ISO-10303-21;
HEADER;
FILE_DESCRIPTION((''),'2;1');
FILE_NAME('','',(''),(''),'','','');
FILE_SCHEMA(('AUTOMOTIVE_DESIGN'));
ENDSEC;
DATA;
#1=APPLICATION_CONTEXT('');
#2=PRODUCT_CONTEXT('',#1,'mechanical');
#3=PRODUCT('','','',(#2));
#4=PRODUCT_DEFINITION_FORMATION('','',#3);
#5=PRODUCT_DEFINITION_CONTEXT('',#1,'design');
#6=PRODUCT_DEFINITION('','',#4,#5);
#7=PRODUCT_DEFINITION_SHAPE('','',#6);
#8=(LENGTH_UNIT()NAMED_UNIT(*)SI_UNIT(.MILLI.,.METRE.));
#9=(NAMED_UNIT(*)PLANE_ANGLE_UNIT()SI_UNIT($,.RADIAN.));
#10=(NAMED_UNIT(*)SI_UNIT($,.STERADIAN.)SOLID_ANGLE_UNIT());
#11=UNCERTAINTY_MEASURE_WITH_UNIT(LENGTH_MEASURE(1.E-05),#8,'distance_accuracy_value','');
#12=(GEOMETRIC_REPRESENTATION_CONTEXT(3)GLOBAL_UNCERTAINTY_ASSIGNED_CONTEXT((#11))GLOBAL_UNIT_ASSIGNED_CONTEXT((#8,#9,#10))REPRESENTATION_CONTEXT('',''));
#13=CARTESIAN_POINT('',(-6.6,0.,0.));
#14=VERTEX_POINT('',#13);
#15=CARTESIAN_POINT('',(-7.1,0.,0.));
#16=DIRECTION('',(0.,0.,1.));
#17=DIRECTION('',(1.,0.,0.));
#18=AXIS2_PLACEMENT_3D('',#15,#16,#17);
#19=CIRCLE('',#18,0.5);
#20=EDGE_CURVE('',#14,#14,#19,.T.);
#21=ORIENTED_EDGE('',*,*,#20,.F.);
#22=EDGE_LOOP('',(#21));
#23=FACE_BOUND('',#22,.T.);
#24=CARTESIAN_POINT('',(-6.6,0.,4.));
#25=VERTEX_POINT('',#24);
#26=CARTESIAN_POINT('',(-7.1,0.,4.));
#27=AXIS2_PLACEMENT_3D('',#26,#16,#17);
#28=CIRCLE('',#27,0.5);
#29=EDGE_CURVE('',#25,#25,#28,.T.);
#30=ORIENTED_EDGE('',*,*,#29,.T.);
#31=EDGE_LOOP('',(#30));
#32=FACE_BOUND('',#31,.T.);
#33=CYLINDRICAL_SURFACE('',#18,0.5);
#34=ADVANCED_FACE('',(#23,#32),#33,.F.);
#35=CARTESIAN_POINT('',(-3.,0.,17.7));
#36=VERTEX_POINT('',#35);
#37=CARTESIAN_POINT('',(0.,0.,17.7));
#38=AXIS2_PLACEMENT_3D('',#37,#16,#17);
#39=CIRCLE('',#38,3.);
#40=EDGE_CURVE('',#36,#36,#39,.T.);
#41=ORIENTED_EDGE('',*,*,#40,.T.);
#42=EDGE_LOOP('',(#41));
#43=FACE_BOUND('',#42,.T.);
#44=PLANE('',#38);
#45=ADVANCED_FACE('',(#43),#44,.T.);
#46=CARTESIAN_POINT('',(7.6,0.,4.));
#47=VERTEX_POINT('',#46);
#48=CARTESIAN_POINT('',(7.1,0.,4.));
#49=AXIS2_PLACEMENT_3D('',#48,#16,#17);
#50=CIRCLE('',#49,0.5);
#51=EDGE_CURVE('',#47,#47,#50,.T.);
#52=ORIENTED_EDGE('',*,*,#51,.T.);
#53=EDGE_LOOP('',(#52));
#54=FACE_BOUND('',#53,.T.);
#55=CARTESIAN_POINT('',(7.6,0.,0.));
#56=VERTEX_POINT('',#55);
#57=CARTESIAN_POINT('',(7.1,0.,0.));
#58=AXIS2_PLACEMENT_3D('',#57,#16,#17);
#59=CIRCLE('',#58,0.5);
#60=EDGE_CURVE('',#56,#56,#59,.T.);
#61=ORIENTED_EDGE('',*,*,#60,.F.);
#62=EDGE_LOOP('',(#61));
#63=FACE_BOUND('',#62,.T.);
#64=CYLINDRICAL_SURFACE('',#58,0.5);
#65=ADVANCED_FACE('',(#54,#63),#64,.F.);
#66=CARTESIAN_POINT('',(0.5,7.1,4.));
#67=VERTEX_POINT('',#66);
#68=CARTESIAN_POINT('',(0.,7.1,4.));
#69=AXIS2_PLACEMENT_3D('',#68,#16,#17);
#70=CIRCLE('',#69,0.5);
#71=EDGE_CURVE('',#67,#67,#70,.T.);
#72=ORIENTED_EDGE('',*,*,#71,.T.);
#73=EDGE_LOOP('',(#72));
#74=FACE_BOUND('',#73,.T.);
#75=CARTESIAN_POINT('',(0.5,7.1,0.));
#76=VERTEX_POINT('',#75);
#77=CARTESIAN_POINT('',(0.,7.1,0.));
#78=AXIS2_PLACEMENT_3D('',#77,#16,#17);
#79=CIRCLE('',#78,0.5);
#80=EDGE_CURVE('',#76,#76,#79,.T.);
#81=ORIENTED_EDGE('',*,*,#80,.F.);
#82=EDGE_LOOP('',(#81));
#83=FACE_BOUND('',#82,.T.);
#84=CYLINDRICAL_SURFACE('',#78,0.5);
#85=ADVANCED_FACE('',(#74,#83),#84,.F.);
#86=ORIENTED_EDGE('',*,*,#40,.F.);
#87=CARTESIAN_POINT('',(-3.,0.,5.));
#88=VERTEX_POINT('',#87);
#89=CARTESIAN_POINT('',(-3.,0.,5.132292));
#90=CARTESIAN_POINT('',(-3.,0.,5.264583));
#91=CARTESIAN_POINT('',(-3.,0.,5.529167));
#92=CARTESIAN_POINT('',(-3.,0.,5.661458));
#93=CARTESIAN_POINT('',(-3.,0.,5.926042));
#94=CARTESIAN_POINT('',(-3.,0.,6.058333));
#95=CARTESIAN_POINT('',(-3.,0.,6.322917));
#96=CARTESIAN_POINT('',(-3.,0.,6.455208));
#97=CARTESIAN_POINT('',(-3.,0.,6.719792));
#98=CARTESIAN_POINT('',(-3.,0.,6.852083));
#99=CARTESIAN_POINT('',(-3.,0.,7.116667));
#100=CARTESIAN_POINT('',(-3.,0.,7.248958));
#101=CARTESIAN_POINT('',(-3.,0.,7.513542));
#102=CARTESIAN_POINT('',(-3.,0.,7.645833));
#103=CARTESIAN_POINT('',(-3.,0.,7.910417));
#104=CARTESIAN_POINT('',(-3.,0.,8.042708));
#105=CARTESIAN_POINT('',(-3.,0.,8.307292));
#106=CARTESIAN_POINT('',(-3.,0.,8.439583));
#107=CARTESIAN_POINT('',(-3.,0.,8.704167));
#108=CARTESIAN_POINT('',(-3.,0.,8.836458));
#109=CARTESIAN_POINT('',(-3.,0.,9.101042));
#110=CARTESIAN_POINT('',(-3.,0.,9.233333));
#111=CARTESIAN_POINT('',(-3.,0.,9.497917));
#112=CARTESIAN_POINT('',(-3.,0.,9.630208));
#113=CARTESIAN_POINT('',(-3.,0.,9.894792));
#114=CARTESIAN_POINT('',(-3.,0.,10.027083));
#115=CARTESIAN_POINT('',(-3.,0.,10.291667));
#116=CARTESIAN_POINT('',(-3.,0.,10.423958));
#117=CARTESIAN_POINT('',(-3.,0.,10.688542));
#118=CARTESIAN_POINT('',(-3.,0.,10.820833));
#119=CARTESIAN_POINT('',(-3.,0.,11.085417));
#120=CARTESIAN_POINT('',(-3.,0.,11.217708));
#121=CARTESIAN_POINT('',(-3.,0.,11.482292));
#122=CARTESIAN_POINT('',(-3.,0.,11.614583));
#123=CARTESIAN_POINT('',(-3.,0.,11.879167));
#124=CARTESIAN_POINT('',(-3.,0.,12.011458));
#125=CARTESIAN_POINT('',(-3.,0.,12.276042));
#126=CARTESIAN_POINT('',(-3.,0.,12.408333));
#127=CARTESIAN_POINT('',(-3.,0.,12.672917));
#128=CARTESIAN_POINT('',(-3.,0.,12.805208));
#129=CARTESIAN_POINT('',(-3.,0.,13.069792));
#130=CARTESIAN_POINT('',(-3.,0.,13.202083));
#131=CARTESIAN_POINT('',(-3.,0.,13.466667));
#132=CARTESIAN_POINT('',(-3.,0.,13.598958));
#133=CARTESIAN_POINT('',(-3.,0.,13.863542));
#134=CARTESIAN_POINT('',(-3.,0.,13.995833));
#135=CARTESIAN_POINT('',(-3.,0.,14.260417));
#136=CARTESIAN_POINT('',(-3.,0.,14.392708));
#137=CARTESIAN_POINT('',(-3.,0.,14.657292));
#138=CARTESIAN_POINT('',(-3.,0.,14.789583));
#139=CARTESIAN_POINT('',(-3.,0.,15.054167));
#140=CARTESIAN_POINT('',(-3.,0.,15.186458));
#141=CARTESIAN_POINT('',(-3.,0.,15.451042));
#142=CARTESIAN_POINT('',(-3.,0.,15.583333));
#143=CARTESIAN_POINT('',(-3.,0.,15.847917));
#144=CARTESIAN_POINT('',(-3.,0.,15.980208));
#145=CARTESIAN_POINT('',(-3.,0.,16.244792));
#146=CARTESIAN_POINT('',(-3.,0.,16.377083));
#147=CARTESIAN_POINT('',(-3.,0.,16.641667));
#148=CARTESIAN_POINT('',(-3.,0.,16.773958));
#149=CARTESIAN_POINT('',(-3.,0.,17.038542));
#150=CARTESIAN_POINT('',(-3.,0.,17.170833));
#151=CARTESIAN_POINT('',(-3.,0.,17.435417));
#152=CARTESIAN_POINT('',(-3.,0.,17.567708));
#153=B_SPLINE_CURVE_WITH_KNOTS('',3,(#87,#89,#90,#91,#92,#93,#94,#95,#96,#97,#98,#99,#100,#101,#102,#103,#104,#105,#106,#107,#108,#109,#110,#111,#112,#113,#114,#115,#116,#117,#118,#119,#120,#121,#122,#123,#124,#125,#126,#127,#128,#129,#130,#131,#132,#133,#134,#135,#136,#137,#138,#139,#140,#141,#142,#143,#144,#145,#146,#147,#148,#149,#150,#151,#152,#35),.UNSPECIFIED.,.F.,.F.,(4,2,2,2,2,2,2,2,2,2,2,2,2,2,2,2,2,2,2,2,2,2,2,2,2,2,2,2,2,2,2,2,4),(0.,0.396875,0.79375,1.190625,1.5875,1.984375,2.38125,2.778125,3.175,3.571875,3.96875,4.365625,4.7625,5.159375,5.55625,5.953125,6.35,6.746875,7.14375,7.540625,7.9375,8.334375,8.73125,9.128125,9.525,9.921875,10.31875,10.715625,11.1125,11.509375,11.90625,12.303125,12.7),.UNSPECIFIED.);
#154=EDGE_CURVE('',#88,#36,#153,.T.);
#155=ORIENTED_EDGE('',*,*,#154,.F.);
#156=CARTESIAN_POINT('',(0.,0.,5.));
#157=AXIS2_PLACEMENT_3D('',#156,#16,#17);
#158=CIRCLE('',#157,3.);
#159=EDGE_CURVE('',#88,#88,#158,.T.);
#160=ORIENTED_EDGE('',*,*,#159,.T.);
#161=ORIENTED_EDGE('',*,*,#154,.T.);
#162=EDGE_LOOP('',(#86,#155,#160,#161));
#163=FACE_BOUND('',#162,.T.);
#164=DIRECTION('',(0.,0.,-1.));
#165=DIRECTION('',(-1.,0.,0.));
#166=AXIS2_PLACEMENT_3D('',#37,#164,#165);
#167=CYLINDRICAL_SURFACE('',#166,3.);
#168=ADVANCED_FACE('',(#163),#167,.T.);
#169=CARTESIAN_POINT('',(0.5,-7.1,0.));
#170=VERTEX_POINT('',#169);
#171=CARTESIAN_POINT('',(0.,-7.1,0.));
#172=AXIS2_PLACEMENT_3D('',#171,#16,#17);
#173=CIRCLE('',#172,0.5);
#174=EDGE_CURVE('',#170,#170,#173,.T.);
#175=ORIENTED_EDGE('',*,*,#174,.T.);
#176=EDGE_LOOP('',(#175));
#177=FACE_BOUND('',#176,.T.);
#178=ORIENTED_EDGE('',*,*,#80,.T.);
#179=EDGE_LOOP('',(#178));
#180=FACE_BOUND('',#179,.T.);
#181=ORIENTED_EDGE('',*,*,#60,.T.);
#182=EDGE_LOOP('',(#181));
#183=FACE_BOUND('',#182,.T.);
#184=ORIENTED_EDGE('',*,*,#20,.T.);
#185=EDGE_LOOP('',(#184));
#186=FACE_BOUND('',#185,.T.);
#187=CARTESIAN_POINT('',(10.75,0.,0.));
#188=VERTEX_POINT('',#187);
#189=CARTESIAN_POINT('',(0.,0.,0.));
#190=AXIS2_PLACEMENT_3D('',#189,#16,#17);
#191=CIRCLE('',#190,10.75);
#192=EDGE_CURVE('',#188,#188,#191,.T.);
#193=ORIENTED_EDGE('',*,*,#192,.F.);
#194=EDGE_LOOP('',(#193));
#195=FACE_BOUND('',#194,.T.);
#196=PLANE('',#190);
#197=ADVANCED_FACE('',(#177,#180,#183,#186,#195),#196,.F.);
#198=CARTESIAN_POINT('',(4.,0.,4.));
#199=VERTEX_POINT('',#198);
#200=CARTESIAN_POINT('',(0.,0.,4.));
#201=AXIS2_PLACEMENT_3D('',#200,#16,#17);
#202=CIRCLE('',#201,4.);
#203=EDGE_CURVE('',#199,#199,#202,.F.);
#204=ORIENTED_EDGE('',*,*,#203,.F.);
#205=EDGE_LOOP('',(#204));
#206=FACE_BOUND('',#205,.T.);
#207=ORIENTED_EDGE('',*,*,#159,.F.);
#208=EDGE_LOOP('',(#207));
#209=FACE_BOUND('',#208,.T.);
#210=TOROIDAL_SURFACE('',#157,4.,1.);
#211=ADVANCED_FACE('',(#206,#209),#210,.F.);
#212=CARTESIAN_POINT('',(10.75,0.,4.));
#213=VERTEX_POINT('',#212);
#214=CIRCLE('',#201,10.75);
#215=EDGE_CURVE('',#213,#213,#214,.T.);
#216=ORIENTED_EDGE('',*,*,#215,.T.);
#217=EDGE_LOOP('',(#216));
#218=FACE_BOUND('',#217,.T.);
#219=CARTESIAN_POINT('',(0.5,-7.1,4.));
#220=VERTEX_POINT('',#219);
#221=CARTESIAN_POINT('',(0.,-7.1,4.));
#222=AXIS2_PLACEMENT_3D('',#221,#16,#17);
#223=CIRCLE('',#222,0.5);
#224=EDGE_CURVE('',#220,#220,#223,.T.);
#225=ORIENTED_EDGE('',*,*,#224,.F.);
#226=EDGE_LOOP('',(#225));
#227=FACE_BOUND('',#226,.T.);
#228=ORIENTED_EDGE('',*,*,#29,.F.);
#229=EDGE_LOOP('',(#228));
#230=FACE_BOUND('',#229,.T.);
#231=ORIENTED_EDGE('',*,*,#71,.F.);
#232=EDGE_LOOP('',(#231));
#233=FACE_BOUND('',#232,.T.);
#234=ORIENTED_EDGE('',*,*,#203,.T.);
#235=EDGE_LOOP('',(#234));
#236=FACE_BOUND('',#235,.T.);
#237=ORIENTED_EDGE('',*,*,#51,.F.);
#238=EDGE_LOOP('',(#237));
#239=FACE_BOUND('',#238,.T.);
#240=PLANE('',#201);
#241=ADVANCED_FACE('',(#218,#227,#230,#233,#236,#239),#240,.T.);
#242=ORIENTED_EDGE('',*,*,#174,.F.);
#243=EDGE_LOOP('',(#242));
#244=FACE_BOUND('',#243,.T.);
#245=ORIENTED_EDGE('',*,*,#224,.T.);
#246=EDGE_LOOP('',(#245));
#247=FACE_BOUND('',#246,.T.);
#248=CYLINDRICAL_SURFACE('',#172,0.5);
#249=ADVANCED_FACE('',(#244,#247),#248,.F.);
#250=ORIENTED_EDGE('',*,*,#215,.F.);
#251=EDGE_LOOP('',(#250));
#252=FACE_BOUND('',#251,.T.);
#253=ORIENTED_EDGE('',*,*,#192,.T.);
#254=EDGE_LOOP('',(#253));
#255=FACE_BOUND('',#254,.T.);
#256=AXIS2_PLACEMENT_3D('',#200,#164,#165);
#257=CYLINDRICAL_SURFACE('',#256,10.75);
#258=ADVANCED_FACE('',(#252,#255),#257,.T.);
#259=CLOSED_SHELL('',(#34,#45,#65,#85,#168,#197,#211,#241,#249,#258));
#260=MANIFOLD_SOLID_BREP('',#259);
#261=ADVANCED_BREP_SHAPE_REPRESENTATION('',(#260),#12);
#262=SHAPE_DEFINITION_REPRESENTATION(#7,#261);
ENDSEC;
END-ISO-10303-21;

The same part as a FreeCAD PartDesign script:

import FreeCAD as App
import Part
import Sketcher

V = App.Vector
Q = App.Units.Quantity


def edges_at(feature, points):
    """Names of the edges that pass closest to the given points."""
    edges = feature.Shape.Edges
    near = lambda p: min(range(len(edges)), key=lambda i: edges[i].distToShape(Part.Vertex(*p))[0])
    return sorted({f"Edge{near(p) + 1}" for p in points})

doc = App.newDocument("Part")
body = doc.addObject("PartDesign::Body", "Body")

# Sketch on XY plane
sketch1 = doc.addObject("Sketcher::SketchObject", "Sketch")
body.addObject(sketch1)
sketch1.AttachmentSupport = (doc.XY_Plane, [""])
sketch1.MapMode = "FlatFace"
sketch1.addGeometry(Part.Circle(V(0, 0, 0), V(0, 0, 1), 11), False)
sketch1.addConstraint([
    Sketcher.Constraint("Coincident", 0, 3, -1, 1),
    Sketcher.Constraint("Diameter", 0, Q("21.5 mm")),
])
pad1 = doc.addObject("PartDesign::Pad", "Pad")
body.addObject(pad1)
pad1.Profile = sketch1
pad1.Length = 4

# Sketch on XY plane
sketch2 = doc.addObject("Sketcher::SketchObject", "Sketch001")
body.addObject(sketch2)
sketch2.AttachmentSupport = (doc.XY_Plane, [""])
sketch2.MapMode = "FlatFace"
sketch2.AttachmentOffset = App.Placement(V(0, 0, 4), App.Rotation())
sketch2.addGeometry(Part.Circle(V(0, 0, 0), V(0, 0, 1), 3), False)
sketch2.addConstraint([
    Sketcher.Constraint("Coincident", 0, 3, -1, 1),
    Sketcher.Constraint("Diameter", 0, Q("6 mm")),
])
pad2 = doc.addObject("PartDesign::Pad", "Pad001")
body.addObject(pad2)
pad2.Profile = sketch2
pad2.Length = 13.7
doc.recompute()

fillet = doc.addObject("PartDesign::Fillet", "Fillet")
body.addObject(fillet)
fillet.Base = (pad2, edges_at(pad2, [(3, 0, 4)]))
fillet.Radius = 1

# Sketch on XY plane
sketch3 = doc.addObject("Sketcher::SketchObject", "Sketch002")
body.addObject(sketch3)
sketch3.AttachmentSupport = (doc.XY_Plane, [""])
sketch3.MapMode = "FlatFace"
sketch3.AttachmentOffset = App.Placement(V(0, 0, 4), App.Rotation())
sketch3.addGeometry([
    Part.Circle(V(7.1, 0, 0), V(0, 0, 1), 0.5),
    Part.Circle(V(-7.1, 0, 0), V(0, 0, 1), 0.5),
    Part.Circle(V(0, 7.1, 0), V(0, 0, 1), 0.5),
    Part.Circle(V(0, -7.1, 0), V(0, 0, 1), 0.5),
], False)
sketch3.addConstraint([
    Sketcher.Constraint("Equal", 0, 1),
    Sketcher.Constraint("Equal", 1, 2),
    Sketcher.Constraint("Equal", 2, 3),
    Sketcher.Constraint("Symmetric", 0, 3, 1, 3, -1, 1),
    Sketcher.Constraint("Symmetric", 2, 3, 3, 3, -1, 1),
    Sketcher.Constraint("PointOnObject", 0, 3, -1),
    Sketcher.Constraint("PointOnObject", 2, 3, -2),
    Sketcher.Constraint("Diameter", 0, Q("1 mm")),
    Sketcher.Constraint("DistanceX", -1, 1, 0, 3, Q("7.1 mm")),
    Sketcher.Constraint("DistanceY", -1, 1, 2, 3, Q("7.1 mm")),
])
pocket1 = doc.addObject("PartDesign::Pocket", "Pocket")
body.addObject(pocket1)
pocket1.Profile = sketch3
pocket1.Type = "ThroughAll"

doc.recompute()
